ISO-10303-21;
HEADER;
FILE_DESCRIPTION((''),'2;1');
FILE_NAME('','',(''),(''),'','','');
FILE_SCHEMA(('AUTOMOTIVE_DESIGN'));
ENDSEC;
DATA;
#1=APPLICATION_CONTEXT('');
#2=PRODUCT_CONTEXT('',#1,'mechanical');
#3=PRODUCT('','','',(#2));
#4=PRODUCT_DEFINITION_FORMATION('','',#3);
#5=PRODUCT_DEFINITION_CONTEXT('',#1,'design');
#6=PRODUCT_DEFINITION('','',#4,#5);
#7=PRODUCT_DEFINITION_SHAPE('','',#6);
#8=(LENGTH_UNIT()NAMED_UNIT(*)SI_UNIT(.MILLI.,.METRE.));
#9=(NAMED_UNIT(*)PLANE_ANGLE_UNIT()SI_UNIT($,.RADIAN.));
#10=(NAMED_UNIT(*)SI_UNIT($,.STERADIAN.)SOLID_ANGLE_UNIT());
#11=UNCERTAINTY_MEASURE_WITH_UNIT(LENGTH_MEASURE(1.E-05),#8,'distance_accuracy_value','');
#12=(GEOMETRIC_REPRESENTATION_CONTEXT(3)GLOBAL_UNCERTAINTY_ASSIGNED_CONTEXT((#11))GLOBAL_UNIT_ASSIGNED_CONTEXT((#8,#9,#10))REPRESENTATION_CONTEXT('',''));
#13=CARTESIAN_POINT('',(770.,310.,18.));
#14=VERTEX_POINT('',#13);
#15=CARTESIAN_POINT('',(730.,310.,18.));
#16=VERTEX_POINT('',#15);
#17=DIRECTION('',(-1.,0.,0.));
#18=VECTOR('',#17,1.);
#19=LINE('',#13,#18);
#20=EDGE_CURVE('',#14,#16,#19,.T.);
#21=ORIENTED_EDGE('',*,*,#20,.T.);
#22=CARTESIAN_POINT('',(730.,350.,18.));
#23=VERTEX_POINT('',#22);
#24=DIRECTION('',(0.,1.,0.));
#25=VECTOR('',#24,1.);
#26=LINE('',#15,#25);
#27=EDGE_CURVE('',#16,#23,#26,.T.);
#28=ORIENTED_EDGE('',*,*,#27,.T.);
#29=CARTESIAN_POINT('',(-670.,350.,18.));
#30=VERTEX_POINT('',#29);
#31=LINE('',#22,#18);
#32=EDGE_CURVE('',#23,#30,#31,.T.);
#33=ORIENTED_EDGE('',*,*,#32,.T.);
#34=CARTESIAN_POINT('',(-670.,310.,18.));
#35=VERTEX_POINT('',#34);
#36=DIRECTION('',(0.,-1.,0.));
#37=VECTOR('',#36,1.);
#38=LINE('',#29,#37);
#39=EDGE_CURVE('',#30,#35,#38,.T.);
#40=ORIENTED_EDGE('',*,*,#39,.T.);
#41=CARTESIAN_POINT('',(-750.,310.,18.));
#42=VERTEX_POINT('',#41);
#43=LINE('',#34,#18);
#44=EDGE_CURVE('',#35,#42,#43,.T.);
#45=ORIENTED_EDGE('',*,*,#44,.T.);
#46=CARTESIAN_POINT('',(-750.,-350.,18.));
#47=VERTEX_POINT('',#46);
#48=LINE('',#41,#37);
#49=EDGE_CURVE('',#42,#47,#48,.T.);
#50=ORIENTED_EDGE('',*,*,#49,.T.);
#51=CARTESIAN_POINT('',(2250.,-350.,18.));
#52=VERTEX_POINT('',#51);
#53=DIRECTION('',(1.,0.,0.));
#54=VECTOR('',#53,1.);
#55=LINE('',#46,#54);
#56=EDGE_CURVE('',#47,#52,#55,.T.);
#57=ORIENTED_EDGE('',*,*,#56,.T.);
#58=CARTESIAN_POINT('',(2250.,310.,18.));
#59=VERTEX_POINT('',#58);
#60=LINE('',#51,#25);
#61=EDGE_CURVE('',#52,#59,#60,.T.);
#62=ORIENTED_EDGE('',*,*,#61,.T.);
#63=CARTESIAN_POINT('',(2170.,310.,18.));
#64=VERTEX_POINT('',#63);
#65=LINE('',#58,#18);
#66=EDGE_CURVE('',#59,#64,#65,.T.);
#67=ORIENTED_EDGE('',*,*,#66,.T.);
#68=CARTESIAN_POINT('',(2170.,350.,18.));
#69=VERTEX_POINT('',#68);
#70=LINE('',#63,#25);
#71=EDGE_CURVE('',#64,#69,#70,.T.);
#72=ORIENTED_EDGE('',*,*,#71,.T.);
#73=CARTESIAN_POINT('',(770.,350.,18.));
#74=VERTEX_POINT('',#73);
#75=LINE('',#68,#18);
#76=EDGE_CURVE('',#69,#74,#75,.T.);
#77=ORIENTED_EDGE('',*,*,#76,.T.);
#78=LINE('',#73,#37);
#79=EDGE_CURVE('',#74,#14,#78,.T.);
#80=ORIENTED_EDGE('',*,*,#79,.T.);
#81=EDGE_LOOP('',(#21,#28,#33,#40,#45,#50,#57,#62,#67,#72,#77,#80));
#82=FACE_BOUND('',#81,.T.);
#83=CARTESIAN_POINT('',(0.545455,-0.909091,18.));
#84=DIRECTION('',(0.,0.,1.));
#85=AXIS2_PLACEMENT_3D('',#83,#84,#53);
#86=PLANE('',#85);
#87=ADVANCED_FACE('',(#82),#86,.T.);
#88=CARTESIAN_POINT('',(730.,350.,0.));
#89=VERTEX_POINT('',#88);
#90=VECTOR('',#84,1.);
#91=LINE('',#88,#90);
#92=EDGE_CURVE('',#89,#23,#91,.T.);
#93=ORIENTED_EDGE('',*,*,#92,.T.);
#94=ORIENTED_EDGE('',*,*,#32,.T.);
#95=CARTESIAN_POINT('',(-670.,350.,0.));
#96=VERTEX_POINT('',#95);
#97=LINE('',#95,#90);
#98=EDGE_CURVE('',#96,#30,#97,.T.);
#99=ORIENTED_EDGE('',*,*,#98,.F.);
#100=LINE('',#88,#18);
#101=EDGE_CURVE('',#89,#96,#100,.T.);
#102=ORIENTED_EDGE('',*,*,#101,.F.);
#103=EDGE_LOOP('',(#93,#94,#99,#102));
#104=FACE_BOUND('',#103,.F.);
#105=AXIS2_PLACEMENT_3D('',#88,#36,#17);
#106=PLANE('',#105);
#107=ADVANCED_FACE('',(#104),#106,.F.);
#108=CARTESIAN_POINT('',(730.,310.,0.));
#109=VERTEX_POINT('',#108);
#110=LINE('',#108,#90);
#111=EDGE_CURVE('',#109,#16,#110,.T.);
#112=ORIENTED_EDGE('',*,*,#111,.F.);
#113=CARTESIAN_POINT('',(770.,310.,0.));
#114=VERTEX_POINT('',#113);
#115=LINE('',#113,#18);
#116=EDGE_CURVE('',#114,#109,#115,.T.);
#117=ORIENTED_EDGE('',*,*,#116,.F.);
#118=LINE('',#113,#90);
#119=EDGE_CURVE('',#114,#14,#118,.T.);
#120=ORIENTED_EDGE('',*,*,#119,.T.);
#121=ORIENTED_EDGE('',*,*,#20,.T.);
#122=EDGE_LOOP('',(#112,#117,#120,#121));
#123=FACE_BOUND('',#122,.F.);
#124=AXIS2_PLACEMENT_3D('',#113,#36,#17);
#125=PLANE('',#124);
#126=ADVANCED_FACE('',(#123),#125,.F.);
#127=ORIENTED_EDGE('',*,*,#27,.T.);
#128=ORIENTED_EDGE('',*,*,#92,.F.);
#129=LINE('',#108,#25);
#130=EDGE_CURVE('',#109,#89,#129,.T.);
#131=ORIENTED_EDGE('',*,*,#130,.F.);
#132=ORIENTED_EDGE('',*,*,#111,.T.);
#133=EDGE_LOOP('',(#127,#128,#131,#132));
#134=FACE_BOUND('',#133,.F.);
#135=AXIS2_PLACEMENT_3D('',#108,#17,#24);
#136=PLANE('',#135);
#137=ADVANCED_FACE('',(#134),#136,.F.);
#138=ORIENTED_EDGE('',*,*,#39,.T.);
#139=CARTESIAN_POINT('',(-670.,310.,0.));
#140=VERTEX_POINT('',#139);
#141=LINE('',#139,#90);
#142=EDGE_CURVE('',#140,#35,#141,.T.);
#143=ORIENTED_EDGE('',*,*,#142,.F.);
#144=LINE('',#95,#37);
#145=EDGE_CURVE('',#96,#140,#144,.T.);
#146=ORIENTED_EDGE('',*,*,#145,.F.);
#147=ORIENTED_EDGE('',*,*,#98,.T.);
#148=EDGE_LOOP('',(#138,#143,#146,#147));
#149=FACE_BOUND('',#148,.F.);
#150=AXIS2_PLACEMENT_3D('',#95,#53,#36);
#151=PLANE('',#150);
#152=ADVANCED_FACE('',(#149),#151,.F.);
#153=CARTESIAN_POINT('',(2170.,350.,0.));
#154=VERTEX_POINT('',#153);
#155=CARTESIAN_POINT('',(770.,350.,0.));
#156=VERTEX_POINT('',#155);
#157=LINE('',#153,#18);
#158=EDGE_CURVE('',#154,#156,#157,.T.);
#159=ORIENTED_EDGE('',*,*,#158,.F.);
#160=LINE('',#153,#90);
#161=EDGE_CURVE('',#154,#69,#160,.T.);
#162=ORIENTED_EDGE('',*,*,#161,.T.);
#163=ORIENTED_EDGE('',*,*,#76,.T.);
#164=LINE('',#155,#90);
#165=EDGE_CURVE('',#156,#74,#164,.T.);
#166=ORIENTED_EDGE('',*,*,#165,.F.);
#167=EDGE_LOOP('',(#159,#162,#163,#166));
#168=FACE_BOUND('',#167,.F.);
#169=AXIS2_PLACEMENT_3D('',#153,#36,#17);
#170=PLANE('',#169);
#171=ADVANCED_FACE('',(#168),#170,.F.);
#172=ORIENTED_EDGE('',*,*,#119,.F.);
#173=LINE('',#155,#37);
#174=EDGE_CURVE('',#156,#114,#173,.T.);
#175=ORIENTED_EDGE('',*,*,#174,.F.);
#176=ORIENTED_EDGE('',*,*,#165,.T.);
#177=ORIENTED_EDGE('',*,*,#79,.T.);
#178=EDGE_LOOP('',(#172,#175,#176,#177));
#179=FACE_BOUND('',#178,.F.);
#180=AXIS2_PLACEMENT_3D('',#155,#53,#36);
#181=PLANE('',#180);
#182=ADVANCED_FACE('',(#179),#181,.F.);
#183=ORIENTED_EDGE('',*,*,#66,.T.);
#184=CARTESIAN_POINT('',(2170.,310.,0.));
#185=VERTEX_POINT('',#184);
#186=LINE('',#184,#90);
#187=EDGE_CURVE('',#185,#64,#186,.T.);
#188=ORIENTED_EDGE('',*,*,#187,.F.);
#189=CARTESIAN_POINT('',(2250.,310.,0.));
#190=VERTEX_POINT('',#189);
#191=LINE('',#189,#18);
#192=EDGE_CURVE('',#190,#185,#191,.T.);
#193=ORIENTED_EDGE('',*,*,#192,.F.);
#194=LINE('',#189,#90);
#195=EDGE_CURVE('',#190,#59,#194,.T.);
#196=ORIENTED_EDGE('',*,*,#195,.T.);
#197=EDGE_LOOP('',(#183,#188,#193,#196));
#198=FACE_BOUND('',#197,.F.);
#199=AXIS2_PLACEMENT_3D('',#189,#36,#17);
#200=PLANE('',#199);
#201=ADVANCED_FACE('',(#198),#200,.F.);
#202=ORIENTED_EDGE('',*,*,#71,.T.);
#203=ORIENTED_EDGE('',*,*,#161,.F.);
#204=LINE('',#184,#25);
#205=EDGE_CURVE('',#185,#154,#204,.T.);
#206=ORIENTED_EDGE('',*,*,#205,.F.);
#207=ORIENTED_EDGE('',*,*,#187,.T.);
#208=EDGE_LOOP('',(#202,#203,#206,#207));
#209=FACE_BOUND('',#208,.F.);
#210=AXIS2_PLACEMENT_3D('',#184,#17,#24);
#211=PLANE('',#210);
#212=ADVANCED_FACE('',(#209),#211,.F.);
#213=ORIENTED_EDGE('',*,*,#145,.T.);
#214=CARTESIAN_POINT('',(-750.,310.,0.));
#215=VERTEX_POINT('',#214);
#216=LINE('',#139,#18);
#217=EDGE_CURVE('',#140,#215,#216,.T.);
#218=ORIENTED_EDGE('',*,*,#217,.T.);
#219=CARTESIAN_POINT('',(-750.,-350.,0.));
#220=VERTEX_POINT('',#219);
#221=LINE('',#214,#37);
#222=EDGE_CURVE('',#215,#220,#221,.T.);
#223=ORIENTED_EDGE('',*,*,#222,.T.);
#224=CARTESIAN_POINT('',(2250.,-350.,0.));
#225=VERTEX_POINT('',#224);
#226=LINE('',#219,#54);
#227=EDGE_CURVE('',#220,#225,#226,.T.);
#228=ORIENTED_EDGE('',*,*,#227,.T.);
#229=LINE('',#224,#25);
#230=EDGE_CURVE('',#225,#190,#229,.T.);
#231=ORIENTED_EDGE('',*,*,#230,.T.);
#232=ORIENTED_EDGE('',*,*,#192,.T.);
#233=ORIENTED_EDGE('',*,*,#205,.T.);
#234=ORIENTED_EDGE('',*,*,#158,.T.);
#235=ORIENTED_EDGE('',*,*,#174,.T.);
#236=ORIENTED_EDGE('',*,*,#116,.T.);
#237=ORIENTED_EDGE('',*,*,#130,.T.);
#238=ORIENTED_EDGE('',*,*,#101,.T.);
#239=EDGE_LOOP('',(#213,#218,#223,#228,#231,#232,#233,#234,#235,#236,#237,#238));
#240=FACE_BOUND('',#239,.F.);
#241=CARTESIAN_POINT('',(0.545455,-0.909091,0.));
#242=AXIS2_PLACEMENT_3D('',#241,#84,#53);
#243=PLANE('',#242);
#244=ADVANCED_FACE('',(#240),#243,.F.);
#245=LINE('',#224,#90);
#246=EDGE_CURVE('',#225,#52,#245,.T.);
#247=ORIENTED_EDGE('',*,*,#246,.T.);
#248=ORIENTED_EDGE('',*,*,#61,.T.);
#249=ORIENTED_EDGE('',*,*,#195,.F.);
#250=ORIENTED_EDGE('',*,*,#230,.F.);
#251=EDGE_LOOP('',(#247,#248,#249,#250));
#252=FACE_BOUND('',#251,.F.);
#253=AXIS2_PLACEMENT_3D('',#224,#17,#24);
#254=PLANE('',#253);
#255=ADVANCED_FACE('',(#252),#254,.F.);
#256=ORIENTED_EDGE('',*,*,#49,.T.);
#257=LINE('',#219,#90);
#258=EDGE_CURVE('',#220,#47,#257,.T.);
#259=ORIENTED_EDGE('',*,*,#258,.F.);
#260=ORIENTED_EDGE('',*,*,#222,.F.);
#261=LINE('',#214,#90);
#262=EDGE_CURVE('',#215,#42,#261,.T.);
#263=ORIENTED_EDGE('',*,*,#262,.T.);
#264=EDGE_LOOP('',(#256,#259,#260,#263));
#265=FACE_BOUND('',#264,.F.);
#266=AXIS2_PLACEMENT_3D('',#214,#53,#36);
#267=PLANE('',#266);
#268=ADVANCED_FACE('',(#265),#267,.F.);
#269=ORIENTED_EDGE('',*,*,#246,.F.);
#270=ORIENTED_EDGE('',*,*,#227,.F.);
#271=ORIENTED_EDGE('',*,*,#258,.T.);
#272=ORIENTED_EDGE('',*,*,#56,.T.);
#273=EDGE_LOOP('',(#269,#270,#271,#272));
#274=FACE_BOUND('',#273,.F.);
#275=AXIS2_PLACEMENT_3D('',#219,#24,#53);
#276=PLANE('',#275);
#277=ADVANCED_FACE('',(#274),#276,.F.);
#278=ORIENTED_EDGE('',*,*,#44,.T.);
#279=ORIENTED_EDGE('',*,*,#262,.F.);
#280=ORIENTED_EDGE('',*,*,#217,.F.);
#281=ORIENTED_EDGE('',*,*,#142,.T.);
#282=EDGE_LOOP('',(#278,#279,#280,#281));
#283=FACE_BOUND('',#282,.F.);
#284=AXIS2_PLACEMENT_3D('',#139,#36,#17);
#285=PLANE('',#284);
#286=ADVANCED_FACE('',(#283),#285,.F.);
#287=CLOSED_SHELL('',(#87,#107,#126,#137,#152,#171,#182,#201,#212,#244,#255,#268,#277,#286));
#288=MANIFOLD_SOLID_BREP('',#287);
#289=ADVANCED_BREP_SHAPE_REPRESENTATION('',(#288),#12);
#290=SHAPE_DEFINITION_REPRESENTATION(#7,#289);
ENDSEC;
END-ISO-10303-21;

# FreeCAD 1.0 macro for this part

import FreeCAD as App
import Part
import Sketcher
from FreeCAD import Vector
Q = App.Units.Quantity


def add_polygon(sketch, points):
    """Adds a closed chain of lines whose ends are joined by coincident constraints."""
    first, n = sketch.GeometryCount, len(points)
    for a, b in zip(points, points[1:] + points[:1]):
        sketch.addGeometry(Part.LineSegment(App.Vector(*a, 0), App.Vector(*b, 0)), False)
    for i in range(n):
        sketch.addConstraint(Sketcher.Constraint("Coincident", first + i, 2, first + (i + 1) % n, 1))

doc = App.newDocument("Part")
body = doc.addObject("PartDesign::Body", "Body")

# Sketch on XY plane
sketch1 = body.newObject("Sketcher::SketchObject", "Sketch")
sketch1.AttachmentSupport = (doc.getObject("XY_Plane"), [""])
sketch1.MapMode = "FlatFace"
add_polygon(sketch1, [(-750, -350), (2250, -350), (2250, 310), (2170, 310), (2170, 350), (770, 350), (770, 310), (730, 310), (730, 350), (-670, 350), (-670, 310), (-750, 310)])  # lines 0-11
sketch1.addConstraint([
    Sketcher.Constraint("Horizontal", 0),
    Sketcher.Constraint("Vertical", 1),
    Sketcher.Constraint("Horizontal", 2),
    Sketcher.Constraint("Vertical", 3),
    Sketcher.Constraint("Horizontal", 4),
    Sketcher.Constraint("Vertical", 5),
    Sketcher.Constraint("Horizontal", 6),
    Sketcher.Constraint("Vertical", 7),
    Sketcher.Constraint("Horizontal", 8),
    Sketcher.Constraint("Vertical", 9),
    Sketcher.Constraint("Horizontal", 10),
    Sketcher.Constraint("Vertical", 11),
    Sketcher.Constraint("Horizontal", 2, 2, 5, 2),
    Sketcher.Constraint("Horizontal", 4, 2, 7, 2),
    Sketcher.Constraint("Horizontal", 6, 2, 9, 2),
    Sketcher.Constraint("Equal", 4, 8),
    Sketcher.Constraint("Equal", 2, 10),
    Sketcher.Constraint("Equal", 6, 3),
    Sketcher.Constraint("DistanceX", 0, 1, 0, 2, Q("3000 mm")),
    Sketcher.Constraint("DistanceX", 2, 2, 2, 1, Q("80 mm")),
    Sketcher.Constraint("DistanceX", 4, 2, 4, 1, Q("1400 mm")),
    Sketcher.Constraint("DistanceY", 1, 1, 1, 2, Q("660 mm")),
    Sketcher.Constraint("DistanceX", -1, 1, 0, 2, Q("2250 mm")),
    Sketcher.Constraint("DistanceY", 0, 2, -1, 1, Q("350 mm")),
])
pad1 = body.newObject("PartDesign::Pad", "Pad")
pad1.Profile = sketch1
pad1.Length = 18

doc.recompute()
